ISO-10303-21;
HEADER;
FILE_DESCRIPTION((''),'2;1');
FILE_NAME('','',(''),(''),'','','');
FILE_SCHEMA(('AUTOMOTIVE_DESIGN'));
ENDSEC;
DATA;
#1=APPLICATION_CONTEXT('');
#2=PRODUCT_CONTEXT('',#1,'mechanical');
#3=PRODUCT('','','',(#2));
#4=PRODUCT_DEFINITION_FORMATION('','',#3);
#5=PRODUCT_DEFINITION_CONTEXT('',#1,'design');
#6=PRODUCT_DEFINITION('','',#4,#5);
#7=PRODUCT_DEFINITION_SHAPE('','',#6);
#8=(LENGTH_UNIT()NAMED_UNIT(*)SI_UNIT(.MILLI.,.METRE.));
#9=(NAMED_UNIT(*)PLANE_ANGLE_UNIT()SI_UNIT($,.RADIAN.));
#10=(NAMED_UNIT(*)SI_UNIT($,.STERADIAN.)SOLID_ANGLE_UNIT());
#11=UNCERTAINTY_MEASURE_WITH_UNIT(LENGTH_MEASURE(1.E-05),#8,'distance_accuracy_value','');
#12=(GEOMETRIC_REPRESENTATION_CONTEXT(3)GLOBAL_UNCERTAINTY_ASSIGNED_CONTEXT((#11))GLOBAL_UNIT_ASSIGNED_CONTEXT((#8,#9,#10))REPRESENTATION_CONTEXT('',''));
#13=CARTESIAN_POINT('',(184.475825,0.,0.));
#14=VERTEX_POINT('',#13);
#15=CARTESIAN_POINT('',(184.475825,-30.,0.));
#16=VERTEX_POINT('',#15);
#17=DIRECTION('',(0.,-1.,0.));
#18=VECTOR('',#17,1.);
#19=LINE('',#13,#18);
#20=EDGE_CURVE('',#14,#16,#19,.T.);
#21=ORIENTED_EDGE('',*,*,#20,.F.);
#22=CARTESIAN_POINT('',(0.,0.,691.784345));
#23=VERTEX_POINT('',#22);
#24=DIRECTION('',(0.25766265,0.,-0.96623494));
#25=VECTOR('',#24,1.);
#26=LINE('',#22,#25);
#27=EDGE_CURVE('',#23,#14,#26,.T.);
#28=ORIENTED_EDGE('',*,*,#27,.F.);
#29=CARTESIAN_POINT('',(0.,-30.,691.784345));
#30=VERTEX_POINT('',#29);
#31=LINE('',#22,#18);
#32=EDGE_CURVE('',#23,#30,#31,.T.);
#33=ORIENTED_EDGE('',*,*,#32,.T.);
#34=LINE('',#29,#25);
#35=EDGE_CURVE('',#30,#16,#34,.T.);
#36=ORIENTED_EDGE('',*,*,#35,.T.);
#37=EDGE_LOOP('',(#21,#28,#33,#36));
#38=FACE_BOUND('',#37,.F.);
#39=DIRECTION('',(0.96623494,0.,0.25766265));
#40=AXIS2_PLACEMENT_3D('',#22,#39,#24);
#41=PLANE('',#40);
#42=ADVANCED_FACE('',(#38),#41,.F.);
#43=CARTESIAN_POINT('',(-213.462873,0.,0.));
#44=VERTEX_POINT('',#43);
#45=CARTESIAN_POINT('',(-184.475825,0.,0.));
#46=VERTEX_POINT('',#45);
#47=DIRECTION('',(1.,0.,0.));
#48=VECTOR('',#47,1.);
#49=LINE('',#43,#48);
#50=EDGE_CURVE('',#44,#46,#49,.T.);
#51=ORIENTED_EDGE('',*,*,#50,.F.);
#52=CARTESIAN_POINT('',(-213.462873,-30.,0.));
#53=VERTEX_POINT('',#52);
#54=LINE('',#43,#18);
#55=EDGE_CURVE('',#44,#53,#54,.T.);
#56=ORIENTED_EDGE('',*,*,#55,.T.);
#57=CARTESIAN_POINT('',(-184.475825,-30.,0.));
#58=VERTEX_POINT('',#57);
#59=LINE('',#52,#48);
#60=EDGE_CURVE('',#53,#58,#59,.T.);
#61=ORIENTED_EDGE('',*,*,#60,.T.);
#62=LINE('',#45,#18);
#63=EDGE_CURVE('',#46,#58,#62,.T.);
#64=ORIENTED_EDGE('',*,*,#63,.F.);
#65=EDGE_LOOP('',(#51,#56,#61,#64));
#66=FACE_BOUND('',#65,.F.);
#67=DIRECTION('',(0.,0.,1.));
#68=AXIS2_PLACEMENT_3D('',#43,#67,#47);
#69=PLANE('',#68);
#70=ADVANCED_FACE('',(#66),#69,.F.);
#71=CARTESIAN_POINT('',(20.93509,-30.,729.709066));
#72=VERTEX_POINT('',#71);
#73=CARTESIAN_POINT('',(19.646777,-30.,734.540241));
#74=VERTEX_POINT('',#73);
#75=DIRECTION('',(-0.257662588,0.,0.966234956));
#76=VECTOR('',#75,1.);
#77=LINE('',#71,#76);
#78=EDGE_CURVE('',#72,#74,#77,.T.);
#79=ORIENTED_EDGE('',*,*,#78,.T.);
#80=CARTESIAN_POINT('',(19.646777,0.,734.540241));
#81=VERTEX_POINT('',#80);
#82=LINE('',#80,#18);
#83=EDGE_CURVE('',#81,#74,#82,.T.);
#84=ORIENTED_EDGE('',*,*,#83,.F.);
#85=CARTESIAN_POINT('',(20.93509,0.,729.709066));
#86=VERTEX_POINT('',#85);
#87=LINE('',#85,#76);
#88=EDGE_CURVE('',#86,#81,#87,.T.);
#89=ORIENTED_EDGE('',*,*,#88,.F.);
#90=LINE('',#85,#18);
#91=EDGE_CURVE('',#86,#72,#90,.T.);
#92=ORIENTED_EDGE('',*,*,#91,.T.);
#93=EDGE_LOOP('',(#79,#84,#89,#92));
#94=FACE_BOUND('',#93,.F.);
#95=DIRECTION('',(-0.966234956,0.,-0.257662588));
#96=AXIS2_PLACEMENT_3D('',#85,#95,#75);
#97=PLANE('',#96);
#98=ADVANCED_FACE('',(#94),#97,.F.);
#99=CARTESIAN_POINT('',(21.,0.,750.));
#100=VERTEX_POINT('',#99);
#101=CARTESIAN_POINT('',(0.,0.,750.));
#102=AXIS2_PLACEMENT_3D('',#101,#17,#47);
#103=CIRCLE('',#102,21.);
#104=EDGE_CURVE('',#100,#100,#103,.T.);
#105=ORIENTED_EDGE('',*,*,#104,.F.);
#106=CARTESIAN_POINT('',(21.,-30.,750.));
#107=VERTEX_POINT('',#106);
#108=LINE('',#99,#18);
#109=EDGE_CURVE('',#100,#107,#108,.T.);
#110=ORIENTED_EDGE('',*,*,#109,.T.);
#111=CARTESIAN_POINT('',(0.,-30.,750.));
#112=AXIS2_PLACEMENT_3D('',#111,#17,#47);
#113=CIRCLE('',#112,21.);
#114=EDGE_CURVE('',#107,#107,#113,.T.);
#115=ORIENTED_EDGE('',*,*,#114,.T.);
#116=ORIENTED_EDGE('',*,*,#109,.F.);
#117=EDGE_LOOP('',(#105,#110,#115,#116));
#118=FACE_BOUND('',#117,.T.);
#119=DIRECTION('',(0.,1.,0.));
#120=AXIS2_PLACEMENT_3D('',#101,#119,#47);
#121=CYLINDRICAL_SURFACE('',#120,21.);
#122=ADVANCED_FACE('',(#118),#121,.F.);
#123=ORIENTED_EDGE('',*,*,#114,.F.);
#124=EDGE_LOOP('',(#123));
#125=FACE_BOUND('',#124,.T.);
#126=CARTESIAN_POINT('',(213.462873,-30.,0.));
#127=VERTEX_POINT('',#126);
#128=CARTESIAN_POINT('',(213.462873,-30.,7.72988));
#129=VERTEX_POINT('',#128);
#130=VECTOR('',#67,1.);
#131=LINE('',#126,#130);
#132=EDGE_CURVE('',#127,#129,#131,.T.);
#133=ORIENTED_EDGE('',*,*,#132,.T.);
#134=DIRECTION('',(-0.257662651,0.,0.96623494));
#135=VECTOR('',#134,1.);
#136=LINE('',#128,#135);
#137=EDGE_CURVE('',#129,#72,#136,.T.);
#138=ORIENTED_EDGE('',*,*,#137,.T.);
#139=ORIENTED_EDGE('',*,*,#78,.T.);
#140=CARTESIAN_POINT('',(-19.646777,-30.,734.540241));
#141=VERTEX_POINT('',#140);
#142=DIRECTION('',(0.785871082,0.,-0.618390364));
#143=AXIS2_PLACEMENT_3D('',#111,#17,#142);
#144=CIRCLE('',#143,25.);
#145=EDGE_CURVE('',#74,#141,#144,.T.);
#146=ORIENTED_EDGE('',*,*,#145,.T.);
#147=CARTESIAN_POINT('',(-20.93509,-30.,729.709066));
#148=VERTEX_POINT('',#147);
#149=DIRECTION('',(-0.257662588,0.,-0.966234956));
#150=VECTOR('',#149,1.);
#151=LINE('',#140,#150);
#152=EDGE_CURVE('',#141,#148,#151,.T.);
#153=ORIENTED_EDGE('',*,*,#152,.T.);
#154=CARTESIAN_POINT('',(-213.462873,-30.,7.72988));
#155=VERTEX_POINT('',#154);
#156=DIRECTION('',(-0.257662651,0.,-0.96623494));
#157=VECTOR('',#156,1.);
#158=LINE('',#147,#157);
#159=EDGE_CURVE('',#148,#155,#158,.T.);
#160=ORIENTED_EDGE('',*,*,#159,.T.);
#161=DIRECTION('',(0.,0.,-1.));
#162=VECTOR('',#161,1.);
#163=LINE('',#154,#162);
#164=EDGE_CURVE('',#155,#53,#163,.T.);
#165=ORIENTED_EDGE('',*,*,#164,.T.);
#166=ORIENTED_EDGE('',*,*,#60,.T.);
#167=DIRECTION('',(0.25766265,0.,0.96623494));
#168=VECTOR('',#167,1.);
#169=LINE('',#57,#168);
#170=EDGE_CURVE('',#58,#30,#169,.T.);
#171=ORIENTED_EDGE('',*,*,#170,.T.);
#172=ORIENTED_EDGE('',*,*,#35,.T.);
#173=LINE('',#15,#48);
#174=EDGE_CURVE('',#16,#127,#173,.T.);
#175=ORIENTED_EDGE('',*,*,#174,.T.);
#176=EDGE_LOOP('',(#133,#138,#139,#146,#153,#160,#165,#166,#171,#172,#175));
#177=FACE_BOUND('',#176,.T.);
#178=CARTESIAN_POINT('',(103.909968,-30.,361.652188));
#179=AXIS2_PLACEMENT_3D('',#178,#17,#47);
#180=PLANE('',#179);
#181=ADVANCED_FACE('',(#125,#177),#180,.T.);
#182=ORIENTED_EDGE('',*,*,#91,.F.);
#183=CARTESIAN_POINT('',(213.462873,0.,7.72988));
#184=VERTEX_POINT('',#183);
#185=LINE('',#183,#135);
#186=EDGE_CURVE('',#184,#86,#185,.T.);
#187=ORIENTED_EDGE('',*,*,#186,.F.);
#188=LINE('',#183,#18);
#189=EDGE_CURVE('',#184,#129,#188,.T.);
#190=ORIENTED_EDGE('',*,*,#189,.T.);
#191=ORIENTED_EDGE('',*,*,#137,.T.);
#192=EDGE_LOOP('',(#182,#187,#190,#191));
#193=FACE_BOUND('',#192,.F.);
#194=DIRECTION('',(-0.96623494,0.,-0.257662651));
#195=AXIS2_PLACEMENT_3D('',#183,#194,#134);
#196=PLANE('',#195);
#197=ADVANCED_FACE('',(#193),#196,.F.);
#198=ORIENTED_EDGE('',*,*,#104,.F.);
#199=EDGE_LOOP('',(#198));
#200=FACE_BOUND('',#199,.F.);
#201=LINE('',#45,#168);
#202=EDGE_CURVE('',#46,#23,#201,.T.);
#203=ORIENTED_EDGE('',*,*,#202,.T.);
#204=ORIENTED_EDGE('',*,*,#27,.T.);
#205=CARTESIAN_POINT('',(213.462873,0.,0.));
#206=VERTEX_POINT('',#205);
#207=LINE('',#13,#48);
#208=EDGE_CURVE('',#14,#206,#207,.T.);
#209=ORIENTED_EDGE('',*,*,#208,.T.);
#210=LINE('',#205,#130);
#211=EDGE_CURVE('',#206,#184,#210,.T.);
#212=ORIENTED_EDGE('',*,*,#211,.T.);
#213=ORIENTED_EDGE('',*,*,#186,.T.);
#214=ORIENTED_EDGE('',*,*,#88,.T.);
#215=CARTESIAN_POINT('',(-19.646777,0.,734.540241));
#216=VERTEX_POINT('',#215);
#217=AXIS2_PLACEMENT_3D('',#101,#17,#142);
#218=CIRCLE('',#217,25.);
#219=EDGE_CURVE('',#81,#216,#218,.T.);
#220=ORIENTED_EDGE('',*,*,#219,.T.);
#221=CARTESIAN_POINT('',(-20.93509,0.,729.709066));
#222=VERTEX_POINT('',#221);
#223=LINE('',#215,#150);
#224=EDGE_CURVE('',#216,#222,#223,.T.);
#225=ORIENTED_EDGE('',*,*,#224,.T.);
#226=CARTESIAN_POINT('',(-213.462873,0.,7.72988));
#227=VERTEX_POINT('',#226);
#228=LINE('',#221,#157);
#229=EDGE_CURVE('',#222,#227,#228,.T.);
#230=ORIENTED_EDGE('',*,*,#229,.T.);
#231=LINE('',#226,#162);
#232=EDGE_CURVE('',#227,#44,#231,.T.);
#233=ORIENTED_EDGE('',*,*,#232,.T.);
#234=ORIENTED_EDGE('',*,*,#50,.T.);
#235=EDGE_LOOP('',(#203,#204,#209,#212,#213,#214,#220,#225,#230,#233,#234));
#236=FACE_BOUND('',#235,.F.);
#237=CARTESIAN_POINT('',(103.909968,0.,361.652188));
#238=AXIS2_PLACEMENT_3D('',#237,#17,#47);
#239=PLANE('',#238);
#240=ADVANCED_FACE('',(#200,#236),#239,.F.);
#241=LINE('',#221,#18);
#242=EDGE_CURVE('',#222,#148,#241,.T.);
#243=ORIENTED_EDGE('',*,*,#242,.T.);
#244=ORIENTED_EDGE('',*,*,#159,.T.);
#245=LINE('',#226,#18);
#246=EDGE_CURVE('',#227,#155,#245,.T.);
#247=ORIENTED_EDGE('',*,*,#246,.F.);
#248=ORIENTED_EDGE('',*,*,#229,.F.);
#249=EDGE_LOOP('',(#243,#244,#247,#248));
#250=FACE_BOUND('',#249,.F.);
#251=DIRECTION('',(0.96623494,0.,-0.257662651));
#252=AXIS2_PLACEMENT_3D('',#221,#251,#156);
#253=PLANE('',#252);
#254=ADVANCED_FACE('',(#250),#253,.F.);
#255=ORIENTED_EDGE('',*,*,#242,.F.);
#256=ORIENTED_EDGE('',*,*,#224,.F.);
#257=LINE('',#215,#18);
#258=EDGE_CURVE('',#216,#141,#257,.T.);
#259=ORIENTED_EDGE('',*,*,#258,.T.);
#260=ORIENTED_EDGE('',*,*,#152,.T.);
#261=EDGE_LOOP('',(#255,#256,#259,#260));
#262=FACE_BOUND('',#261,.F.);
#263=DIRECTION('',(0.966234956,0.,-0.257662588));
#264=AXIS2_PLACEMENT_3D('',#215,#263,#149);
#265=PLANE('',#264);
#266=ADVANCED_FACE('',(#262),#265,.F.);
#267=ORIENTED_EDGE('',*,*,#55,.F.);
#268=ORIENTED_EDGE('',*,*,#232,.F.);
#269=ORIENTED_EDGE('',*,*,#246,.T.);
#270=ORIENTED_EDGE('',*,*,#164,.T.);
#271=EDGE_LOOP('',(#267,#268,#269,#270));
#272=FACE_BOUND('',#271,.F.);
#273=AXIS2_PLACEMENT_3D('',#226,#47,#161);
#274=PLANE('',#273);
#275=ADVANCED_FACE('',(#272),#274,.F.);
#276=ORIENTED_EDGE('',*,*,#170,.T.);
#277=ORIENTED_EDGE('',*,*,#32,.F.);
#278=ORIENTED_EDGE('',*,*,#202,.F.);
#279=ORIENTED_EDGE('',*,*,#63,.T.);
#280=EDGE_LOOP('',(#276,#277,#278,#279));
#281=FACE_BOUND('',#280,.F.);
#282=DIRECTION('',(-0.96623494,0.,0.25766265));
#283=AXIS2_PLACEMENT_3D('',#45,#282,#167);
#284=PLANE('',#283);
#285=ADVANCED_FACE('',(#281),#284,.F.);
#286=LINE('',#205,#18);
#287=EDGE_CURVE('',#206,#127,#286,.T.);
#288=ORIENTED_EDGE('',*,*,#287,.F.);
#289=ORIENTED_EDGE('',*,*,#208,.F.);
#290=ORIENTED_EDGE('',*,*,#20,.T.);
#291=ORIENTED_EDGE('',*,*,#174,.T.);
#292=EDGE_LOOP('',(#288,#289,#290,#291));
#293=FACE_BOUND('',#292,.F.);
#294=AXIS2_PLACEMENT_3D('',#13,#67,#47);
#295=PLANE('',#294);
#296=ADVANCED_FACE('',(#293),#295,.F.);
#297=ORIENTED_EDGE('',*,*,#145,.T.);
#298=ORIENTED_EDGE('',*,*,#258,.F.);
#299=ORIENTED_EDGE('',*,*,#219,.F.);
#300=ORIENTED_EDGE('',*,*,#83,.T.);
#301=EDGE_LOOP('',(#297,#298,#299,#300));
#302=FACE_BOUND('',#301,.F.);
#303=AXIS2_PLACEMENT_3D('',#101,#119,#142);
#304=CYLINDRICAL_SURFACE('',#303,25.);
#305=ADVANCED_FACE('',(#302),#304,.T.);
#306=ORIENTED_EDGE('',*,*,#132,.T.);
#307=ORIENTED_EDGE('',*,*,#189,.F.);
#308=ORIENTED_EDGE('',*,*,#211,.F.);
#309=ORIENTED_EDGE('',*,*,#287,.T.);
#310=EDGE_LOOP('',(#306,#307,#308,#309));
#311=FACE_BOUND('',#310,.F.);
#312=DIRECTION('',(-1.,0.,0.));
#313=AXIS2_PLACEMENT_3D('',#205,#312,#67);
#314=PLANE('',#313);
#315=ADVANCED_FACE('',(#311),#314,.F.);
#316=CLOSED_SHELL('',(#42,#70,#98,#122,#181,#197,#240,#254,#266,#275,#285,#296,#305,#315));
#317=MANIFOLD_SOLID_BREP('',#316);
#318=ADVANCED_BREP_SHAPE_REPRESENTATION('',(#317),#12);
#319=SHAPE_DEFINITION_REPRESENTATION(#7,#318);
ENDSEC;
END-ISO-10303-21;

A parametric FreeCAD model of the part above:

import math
import FreeCAD as App
import Part
import Sketcher
from FreeCAD import Vector
Q = App.Units.Quantity

doc = App.newDocument("Part")
params = doc.addObject("Spreadsheet::Sheet", "Params")
for row, (alias, value) in enumerate([
    ("sketch1_diameter", "42 mm"),
    ("sketch1_radius", "25 mm"),
    ("sketch1_length", "5 mm"),
    ("pad1_length", "30 mm"),
], start=1):
    params.set(f"A{row}", alias)
    params.set(f"B{row}", "=" + value)
    params.setAlias(f"B{row}", alias)

body = doc.addObject("PartDesign::Body", "Body")

sketch1 = doc.addObject("Sketcher::SketchObject", "Sketch")
body.addObject(sketch1)
sketch1.AttachmentSupport = (doc.XZ_Plane, [""])
sketch1.MapMode = "FlatFace"
sketch1.addGeometry(Part.LineSegment(Vector(21, 730, 0), Vector(20, 735, 0)), False)
sketch1.addGeometry(Part.ArcOfCircle(Part.Circle(Vector(0, 750, 0), Vector(0, 0, 1), 25), math.radians(-38), math.radians(218)), False)
sketch1.addGeometry(Part.LineSegment(Vector(-20, 735, 0), Vector(-21, 730, 0)), False)
sketch1.addGeometry(Part.LineSegment(Vector(-21, 730, 0), Vector(-213, 8, 0)), False)
sketch1.addGeometry(Part.LineSegment(Vector(-213, 8, 0), Vector(-213, 0, 0)), False)
sketch1.addGeometry(Part.LineSegment(Vector(-213, 0, 0), Vector(-184, 0, 0)), False)
sketch1.addGeometry(Part.LineSegment(Vector(-184, 0, 0), Vector(0, 692, 0)), False)
sketch1.addGeometry(Part.LineSegment(Vector(0, 692, 0), Vector(184, 0, 0)), False)
sketch1.addGeometry(Part.LineSegment(Vector(184, 0, 0), Vector(213, 0, 0)), False)
sketch1.addGeometry(Part.LineSegment(Vector(213, 0, 0), Vector(213, 8, 0)), False)
sketch1.addGeometry(Part.LineSegment(Vector(213, 8, 0), Vector(21, 730, 0)), False)
sketch1.addGeometry(Part.Circle(Vector(0, 750, 0), Vector(0, 0, 1), 21), False)
sketch1.addConstraint(Sketcher.Constraint("Coincident", 0, 2, 1, 1))
sketch1.addConstraint(Sketcher.Constraint("Coincident", 1, 2, 2, 1))
sketch1.addConstraint(Sketcher.Constraint("Coincident", 2, 2, 3, 1))
sketch1.addConstraint(Sketcher.Constraint("Coincident", 3, 2, 4, 1))
sketch1.addConstraint(Sketcher.Constraint("Coincident", 4, 2, 5, 1))
sketch1.addConstraint(Sketcher.Constraint("Coincident", 5, 2, 6, 1))
sketch1.addConstraint(Sketcher.Constraint("Coincident", 6, 2, 7, 1))
sketch1.addConstraint(Sketcher.Constraint("Coincident", 7, 2, 8, 1))
sketch1.addConstraint(Sketcher.Constraint("Coincident", 8, 2, 9, 1))
sketch1.addConstraint(Sketcher.Constraint("Coincident", 9, 2, 10, 1))
sketch1.addConstraint(Sketcher.Constraint("Coincident", 10, 2, 0, 1))
sketch1.addConstraint(Sketcher.Constraint("Vertical", 4))
sketch1.addConstraint(Sketcher.Constraint("Horizontal", 5))
sketch1.addConstraint(Sketcher.Constraint("Horizontal", 8))
sketch1.addConstraint(Sketcher.Constraint("Vertical", 9))
sketch1.addConstraint(Sketcher.Constraint("Coincident", 11, 3, 1, 3))
sketch1.addConstraint(Sketcher.Constraint("Symmetric", 5, 2, 7, 2, -1, 1))
sketch1.addConstraint(Sketcher.Constraint("Symmetric", 0, 2, 1, 2, -2))
sketch1.addConstraint(Sketcher.Constraint("Symmetric", 4, 2, 8, 2, -2))
sketch1.addConstraint(Sketcher.Constraint("Symmetric", 2, 2, 10, 2, -2))
sketch1.addConstraint(Sketcher.Constraint("PointOnObject", 6, 2, -2))
sketch1.addConstraint(Sketcher.Constraint("Parallel", 2, 3))
sketch1.addConstraint(Sketcher.Constraint("Parallel", 3, 6))
sketch1.addConstraint(Sketcher.Constraint("Parallel", 7, 10))
sketch1.addConstraint(Sketcher.Constraint("Diameter", 11, Q("42 mm")))
sketch1.addConstraint(Sketcher.Constraint("Radius", 1, Q("25 mm")))
sketch1.addConstraint(Sketcher.Constraint("Distance", 0, Q("5 mm")))
sketch1.addConstraint(Sketcher.Constraint("DistanceY", -1, 1, 1, 3, Q("750 mm")))
sketch1.addConstraint(Sketcher.Constraint("DistanceX", 5, 1, 5, 2, Q("28.987048 mm")))
sketch1.addConstraint(Sketcher.Constraint("DistanceY", 4, 2, 4, 1, Q("7.72988 mm")))
sketch1.addConstraint(Sketcher.Constraint("DistanceX", 5, 2, 0, 2, Q("204.122602 mm")))
sketch1.addConstraint(Sketcher.Constraint("DistanceX", 4, 2, 7, 2, Q("397.938698 mm")))
sketch1.setExpression("Constraints[24]", "Params.sketch1_diameter")
sketch1.setExpression("Constraints[25]", "Params.sketch1_radius")
sketch1.setExpression("Constraints[26]", "Params.sketch1_length")
pad1 = doc.addObject("PartDesign::Pad", "Pad")
body.addObject(pad1)
pad1.Profile = sketch1
pad1.setExpression("Length", "Params.pad1_length")

doc.recompute()
